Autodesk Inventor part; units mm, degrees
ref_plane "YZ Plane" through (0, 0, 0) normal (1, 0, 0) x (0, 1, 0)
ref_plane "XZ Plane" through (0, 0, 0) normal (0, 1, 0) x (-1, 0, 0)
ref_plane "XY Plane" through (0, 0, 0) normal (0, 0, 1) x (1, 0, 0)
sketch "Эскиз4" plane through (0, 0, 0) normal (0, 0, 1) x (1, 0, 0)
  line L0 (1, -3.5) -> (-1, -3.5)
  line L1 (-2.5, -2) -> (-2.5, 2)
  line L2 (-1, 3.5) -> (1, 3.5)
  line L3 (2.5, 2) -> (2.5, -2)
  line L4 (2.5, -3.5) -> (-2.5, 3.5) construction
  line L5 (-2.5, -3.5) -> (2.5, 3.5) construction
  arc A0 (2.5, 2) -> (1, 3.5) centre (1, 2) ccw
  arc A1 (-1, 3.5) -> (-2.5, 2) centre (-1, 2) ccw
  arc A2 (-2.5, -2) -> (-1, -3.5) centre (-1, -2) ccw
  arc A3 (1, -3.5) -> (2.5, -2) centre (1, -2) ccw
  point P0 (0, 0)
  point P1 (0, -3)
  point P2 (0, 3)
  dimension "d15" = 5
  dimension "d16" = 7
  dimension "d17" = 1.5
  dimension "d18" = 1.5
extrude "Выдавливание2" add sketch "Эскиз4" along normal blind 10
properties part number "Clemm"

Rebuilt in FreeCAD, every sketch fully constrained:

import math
import FreeCAD as App
import Part
import Sketcher
Q = App.Units.Quantity

doc = App.newDocument("Part")
body = doc.addObject("PartDesign::Body", "Body")

sketch1 = body.newObject("Sketcher::SketchObject", "Sketch")
sketch1.AttachmentSupport = (doc.getObject("XY_Plane"), [""])
sketch1.MapMode = "FlatFace"
sketch1.addGeometry([
    Part.LineSegment(App.Vector(-1, -3.5, 0), App.Vector(1, -3.5, 0)),
    Part.ArcOfCircle(Part.Circle(App.Vector(1, -2, 0), App.Vector(0, 0, 1), 1.5), math.radians(-90), math.radians(0)),
    Part.LineSegment(App.Vector(2.5, -2, 0), App.Vector(2.5, 2, 0)),
    Part.ArcOfCircle(Part.Circle(App.Vector(1, 2, 0), App.Vector(0, 0, 1), 1.5), math.radians(0), math.radians(90)),
    Part.LineSegment(App.Vector(1, 3.5, 0), App.Vector(-1, 3.5, 0)),
    Part.ArcOfCircle(Part.Circle(App.Vector(-1, 2, 0), App.Vector(0, 0, 1), 1.5), math.radians(90), math.radians(180)),
    Part.LineSegment(App.Vector(-2.5, 2, 0), App.Vector(-2.5, -2, 0)),
    Part.ArcOfCircle(Part.Circle(App.Vector(-1, -2, 0), App.Vector(0, 0, 1), 1.5), math.radians(180), math.radians(270)),
], False)
sketch1.addConstraint([
    Sketcher.Constraint("Tangent", 0, 2, 1, 1),
    Sketcher.Constraint("Tangent", 1, 2, 2, 1),
    Sketcher.Constraint("Tangent", 2, 2, 3, 1),
    Sketcher.Constraint("Tangent", 3, 2, 4, 1),
    Sketcher.Constraint("Tangent", 4, 2, 5, 1),
    Sketcher.Constraint("Tangent", 5, 2, 6, 1),
    Sketcher.Constraint("Tangent", 6, 2, 7, 1),
    Sketcher.Constraint("Tangent", 7, 2, 0, 1),
    Sketcher.Constraint("Horizontal", 0),
    Sketcher.Constraint("Vertical", 2),
    Sketcher.Constraint("Horizontal", 4),
    Sketcher.Constraint("Vertical", 6),
    Sketcher.Constraint("Equal", 1, 3),
    Sketcher.Constraint("Equal", 3, 5),
    Sketcher.Constraint("Equal", 5, 7),
    Sketcher.Constraint("Symmetric", 1, 3, 5, 3, -1, 1),
    Sketcher.Constraint("Radius", 1, Q("1.5 mm")),
    Sketcher.Constraint("DistanceX", 0, 1, 0, 2, Q("2 mm")),
    Sketcher.Constraint("DistanceY", 2, 1, 2, 2, Q("4 mm")),
])
pad1 = body.newObject("PartDesign::Pad", "Pad")
pad1.Profile = sketch1
pad1.Length = 10

doc.recompute()
